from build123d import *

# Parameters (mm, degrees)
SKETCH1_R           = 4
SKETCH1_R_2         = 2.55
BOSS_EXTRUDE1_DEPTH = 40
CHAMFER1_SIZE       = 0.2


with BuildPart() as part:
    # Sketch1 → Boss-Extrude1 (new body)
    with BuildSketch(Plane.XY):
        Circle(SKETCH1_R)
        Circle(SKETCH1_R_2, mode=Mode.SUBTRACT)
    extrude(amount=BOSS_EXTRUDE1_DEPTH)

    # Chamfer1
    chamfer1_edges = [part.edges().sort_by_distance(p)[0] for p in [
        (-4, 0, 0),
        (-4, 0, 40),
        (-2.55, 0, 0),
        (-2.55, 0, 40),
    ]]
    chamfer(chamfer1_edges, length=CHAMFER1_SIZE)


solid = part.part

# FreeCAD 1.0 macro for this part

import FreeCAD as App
import Part
import Sketcher
from FreeCAD import Vector
Q = App.Units.Quantity


def edges_at(feature, points):
    """Names of the edges that pass closest to the given points."""
    edges = feature.Shape.Edges
    near = lambda p: min(range(len(edges)), key=lambda i: edges[i].distToShape(Part.Vertex(*p))[0])
    return sorted({f"Edge{near(p) + 1}" for p in points})

doc = App.newDocument("Part")
body = doc.addObject("PartDesign::Body", "Body")

sketch1 = doc.addObject("Sketcher::SketchObject", "Sketch")
body.addObject(sketch1)
sketch1.AttachmentSupport = (doc.XY_Plane, [""])
sketch1.MapMode = "FlatFace"
sketch1.addGeometry(Part.Circle(Vector(0, 0, 0), Vector(0, 0, 1), 4), False)
sketch1.addGeometry(Part.Circle(Vector(0, 0, 0), Vector(0, 0, 1), 2.55), False)
sketch1.addConstraint(Sketcher.Constraint("Coincident", 0, 3, -1, 1))
sketch1.addConstraint(Sketcher.Constraint("Coincident", 1, 3, -1, 1))
sketch1.addConstraint(Sketcher.Constraint("Diameter", 0, Q("8 mm")))
sketch1.addConstraint(Sketcher.Constraint("Diameter", 1, Q("5.1 mm")))
pad1 = doc.addObject("PartDesign::Pad", "Pad")
body.addObject(pad1)
pad1.Profile = sketch1
pad1.Length = 40
doc.recompute()

chamfer = doc.addObject("PartDesign::Chamfer", "Chamfer")
body.addObject(chamfer)
chamfer.Base = (pad1, edges_at(pad1, [
    (-4, 0, 0),
    (-4, 0, 40),
    (-2.55, 0, 0),
    (-2.55, 0, 40),
]))
chamfer.Size = 0.2

doc.recompute()
